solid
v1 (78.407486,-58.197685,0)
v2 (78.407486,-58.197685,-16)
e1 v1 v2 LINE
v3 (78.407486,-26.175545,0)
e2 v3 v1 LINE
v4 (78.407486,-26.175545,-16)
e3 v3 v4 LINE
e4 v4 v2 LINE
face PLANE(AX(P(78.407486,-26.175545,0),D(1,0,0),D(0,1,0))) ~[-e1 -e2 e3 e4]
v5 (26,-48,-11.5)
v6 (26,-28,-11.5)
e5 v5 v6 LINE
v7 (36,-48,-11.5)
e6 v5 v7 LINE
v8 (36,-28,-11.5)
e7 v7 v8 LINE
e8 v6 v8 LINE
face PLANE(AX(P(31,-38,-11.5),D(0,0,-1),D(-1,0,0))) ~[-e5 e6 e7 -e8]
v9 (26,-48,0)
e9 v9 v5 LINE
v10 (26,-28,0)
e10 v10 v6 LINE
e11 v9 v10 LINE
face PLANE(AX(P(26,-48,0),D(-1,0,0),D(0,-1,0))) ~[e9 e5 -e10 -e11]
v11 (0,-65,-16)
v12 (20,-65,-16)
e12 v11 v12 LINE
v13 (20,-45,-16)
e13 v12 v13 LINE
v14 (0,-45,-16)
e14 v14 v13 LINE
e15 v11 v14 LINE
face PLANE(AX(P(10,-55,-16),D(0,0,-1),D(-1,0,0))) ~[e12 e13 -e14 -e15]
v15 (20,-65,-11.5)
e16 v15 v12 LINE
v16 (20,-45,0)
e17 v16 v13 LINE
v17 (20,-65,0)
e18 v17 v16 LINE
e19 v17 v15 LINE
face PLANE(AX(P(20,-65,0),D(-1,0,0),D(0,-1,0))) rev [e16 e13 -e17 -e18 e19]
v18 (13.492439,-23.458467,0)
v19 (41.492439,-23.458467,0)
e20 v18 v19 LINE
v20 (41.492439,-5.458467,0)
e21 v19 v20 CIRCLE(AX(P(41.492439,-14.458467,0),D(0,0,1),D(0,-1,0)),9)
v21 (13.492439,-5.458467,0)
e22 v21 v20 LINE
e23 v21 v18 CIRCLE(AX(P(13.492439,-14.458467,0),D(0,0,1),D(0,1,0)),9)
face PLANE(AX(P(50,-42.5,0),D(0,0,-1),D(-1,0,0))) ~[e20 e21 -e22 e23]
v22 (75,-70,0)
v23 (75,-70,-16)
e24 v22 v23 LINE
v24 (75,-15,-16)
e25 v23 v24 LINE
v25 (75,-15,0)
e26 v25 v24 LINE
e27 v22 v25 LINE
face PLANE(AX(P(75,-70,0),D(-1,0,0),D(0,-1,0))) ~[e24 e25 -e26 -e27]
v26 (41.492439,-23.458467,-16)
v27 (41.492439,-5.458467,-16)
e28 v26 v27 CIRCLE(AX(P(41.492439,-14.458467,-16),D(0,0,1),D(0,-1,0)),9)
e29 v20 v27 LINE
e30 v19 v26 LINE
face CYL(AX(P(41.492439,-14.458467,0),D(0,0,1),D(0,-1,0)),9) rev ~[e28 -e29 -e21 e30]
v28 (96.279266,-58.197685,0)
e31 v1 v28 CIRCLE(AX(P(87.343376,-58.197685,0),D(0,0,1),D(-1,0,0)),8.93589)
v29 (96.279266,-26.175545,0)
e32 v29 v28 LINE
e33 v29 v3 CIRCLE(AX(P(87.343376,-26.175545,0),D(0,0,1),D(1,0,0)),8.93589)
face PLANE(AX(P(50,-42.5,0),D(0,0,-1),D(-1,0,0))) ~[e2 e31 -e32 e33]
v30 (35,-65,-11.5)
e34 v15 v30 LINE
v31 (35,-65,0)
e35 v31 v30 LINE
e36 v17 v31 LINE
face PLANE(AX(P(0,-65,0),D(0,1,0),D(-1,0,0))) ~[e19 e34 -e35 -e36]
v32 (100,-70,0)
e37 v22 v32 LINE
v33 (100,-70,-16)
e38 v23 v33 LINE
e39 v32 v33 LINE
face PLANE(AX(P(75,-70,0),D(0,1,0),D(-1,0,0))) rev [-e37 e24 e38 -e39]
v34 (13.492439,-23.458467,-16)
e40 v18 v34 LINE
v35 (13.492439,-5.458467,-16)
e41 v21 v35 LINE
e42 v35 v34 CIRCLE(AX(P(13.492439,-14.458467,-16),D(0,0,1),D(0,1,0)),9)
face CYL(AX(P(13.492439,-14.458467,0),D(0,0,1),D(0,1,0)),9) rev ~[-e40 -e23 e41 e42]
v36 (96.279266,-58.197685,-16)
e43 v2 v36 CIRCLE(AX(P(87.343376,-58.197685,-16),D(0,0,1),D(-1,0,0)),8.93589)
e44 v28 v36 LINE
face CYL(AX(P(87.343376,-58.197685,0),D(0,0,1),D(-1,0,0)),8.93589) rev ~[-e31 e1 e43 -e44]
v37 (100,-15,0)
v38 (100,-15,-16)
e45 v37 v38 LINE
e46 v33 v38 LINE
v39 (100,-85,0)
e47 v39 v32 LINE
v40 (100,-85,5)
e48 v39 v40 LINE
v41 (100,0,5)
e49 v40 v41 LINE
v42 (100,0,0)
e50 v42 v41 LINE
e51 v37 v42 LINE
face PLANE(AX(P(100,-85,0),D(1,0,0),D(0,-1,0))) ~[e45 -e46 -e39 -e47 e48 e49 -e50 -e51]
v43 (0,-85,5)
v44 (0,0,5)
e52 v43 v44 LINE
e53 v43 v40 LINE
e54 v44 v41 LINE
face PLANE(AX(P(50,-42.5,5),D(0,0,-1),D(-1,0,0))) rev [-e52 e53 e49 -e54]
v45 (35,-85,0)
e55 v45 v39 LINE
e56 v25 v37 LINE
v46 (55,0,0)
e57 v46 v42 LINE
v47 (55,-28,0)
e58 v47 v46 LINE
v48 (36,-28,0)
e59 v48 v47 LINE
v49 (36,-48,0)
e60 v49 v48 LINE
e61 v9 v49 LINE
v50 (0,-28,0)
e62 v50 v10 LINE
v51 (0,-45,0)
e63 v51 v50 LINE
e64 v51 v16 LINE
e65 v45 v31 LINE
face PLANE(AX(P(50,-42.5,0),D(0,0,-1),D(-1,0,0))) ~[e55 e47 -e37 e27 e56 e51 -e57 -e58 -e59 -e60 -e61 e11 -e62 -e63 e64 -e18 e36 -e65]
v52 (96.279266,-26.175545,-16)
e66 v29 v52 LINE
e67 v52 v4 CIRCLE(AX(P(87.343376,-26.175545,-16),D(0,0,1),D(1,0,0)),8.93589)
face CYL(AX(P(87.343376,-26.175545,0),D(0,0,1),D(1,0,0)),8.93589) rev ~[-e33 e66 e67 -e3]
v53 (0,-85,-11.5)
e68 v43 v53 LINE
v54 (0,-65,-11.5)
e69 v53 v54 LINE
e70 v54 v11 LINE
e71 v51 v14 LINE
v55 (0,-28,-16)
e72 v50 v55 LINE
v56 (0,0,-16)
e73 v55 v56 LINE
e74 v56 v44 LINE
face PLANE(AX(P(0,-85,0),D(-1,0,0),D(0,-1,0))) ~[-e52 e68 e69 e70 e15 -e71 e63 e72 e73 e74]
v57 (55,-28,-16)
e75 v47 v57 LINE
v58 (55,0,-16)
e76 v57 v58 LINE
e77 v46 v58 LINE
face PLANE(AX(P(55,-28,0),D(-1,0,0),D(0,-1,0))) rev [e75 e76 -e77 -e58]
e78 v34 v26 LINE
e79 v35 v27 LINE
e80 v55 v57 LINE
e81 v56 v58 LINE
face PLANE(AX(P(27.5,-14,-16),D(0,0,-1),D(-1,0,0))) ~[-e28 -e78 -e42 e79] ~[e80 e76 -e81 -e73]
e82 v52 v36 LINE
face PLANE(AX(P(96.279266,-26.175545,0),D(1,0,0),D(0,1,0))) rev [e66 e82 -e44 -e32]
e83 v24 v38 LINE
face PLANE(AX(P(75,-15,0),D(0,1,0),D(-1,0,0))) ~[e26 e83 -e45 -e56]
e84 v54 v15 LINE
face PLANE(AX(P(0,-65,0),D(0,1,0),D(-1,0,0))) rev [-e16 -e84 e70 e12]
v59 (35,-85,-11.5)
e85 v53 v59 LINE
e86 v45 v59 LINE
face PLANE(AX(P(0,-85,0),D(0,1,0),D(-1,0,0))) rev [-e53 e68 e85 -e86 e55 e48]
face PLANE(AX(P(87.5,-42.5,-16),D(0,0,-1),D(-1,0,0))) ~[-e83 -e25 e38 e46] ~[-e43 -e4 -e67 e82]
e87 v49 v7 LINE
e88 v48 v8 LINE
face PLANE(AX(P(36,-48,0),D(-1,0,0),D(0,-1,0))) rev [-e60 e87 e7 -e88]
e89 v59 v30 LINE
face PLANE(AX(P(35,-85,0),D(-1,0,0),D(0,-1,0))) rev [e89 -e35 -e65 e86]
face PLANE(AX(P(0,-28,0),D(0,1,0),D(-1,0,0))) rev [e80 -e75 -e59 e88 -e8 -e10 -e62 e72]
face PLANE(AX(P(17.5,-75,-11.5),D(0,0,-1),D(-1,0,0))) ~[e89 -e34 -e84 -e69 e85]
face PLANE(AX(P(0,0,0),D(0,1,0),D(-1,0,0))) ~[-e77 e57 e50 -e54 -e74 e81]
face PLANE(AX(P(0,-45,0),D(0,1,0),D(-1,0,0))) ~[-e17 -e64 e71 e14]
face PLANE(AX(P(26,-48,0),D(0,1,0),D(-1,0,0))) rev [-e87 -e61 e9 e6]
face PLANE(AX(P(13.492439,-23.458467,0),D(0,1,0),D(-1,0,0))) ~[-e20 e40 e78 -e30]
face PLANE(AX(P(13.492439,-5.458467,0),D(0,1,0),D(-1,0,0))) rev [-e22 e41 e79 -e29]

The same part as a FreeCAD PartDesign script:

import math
import FreeCAD as App
import Part
import Sketcher
from FreeCAD import Vector

doc = App.newDocument("Part")
body = doc.addObject("PartDesign::Body", "Body")

sketch1 = doc.addObject("Sketcher::SketchObject", "Sketch")
body.addObject(sketch1)
sketch1.AttachmentSupport = (doc.XY_Plane, [""])
sketch1.MapMode = "FlatFace"
sketch1.addGeometry(Part.LineSegment(Vector(0, 0, 0), Vector(0, -85, 0)), False)
sketch1.addGeometry(Part.LineSegment(Vector(0, -85, 0), Vector(100, -85, 0)), False)
sketch1.addGeometry(Part.LineSegment(Vector(100, -85, 0), Vector(100, 0, 0)), False)
sketch1.addGeometry(Part.LineSegment(Vector(100, 0, 0), Vector(0, 0, 0)), False)
sketch1.addConstraint(Sketcher.Constraint("Coincident", 0, 2, 1, 1))
sketch1.addConstraint(Sketcher.Constraint("Coincident", 1, 2, 2, 1))
sketch1.addConstraint(Sketcher.Constraint("Coincident", 2, 2, 3, 1))
sketch1.addConstraint(Sketcher.Constraint("Coincident", 3, 2, 0, 1))
sketch1.addConstraint(Sketcher.Constraint("Vertical", 0))
sketch1.addConstraint(Sketcher.Constraint("Horizontal", 1))
sketch1.addConstraint(Sketcher.Constraint("Vertical", 2))
sketch1.addConstraint(Sketcher.Constraint("Horizontal", 3))
sketch1.addConstraint(Sketcher.Constraint("Coincident", 3, 2, -1, 1))
sketch1.addConstraint(Sketcher.Constraint("DistanceX", 1, 1, 1, 2, 100.0))
sketch1.addConstraint(Sketcher.Constraint("DistanceY", 0, 2, 0, 1, 85.0))
pad1 = doc.addObject("PartDesign::Pad", "Pad")
body.addObject(pad1)
pad1.Profile = sketch1
pad1.Length = 5
pad1.Reversed = True

sketch2 = doc.addObject("Sketcher::SketchObject", "Sketch001")
body.addObject(sketch2)
sketch2.AttachmentSupport = (doc.XY_Plane, [""])
sketch2.MapMode = "FlatFace"
sketch2.addGeometry(Part.LineSegment(Vector(0, 0, 0), Vector(0, -28, 0)), False)
sketch2.addGeometry(Part.LineSegment(Vector(0, -28, 0), Vector(55, -28, 0)), False)
sketch2.addGeometry(Part.LineSegment(Vector(55, -28, 0), Vector(55, 0, 0)), False)
sketch2.addGeometry(Part.LineSegment(Vector(55, 0, 0), Vector(0, 0, 0)), False)
sketch2.addGeometry(Part.ArcOfCircle(Part.Circle(Vector(13, -14, 0), Vector(0, 0, 1), 9), math.radians(90), math.radians(270)), False)
sketch2.addGeometry(Part.LineSegment(Vector(13, -5, 0), Vector(41, -5, 0)), False)
sketch2.addGeometry(Part.ArcOfCircle(Part.Circle(Vector(41, -14, 0), Vector(0, 0, 1), 9), math.radians(-90), math.radians(90)), False)
sketch2.addGeometry(Part.LineSegment(Vector(41, -23, 0), Vector(13, -23, 0)), False)
sketch2.addGeometry(Part.LineSegment(Vector(75, -15, 0), Vector(75, -70, 0)), False)
sketch2.addGeometry(Part.LineSegment(Vector(75, -70, 0), Vector(100, -70, 0)), False)
sketch2.addGeometry(Part.LineSegment(Vector(100, -70, 0), Vector(100, -15, 0)), False)
sketch2.addGeometry(Part.LineSegment(Vector(100, -15, 0), Vector(75, -15, 0)), False)
sketch2.addGeometry(Part.ArcOfCircle(Part.Circle(Vector(87, -26, 0), Vector(0, 0, 1), 9), math.radians(0), math.radians(180)), False)
sketch2.addGeometry(Part.LineSegment(Vector(96, -26, 0), Vector(96, -58, 0)), False)
sketch2.addGeometry(Part.ArcOfCircle(Part.Circle(Vector(87, -58, 0), Vector(0, 0, 1), 9), math.radians(180), math.radians(360)), False)
sketch2.addGeometry(Part.LineSegment(Vector(78, -58, 0), Vector(78, -26, 0)), False)
sketch2.addGeometry(Part.LineSegment(Vector(0, -45, 0), Vector(0, -65, 0)), False)
sketch2.addGeometry(Part.LineSegment(Vector(0, -65, 0), Vector(20, -65, 0)), False)
sketch2.addGeometry(Part.LineSegment(Vector(20, -65, 0), Vector(20, -45, 0)), False)
sketch2.addGeometry(Part.LineSegment(Vector(20, -45, 0), Vector(0, -45, 0)), False)
sketch2.addConstraint(Sketcher.Constraint("Coincident", 0, 2, 1, 1))
sketch2.addConstraint(Sketcher.Constraint("Coincident", 1, 2, 2, 1))
sketch2.addConstraint(Sketcher.Constraint("Coincident", 2, 2, 3, 1))
sketch2.addConstraint(Sketcher.Constraint("Coincident", 3, 2, 0, 1))
sketch2.addConstraint(Sketcher.Constraint("Tangent", 4, 1, 5, 1))
sketch2.addConstraint(Sketcher.Constraint("Tangent", 5, 2, 6, 2))
sketch2.addConstraint(Sketcher.Constraint("Tangent", 6, 1, 7, 1))
sketch2.addConstraint(Sketcher.Constraint("Tangent", 7, 2, 4, 2))
sketch2.addConstraint(Sketcher.Constraint("Coincident", 8, 2, 9, 1))
sketch2.addConstraint(Sketcher.Constraint("Coincident", 9, 2, 10, 1))
sketch2.addConstraint(Sketcher.Constraint("Coincident", 10, 2, 11, 1))
sketch2.addConstraint(Sketcher.Constraint("Coincident", 11, 2, 8, 1))
sketch2.addConstraint(Sketcher.Constraint("Tangent", 12, 1, 13, 1))
sketch2.addConstraint(Sketcher.Constraint("Tangent", 13, 2, 14, 2))
sketch2.addConstraint(Sketcher.Constraint("Tangent", 14, 1, 15, 1))
sketch2.addConstraint(Sketcher.Constraint("Tangent", 15, 2, 12, 2))
sketch2.addConstraint(Sketcher.Constraint("Coincident", 16, 2, 17, 1))
sketch2.addConstraint(Sketcher.Constraint("Coincident", 17, 2, 18, 1))
sketch2.addConstraint(Sketcher.Constraint("Coincident", 18, 2, 19, 1))
sketch2.addConstraint(Sketcher.Constraint("Coincident", 19, 2, 16, 1))
sketch2.addConstraint(Sketcher.Constraint("Vertical", 0))
sketch2.addConstraint(Sketcher.Constraint("Horizontal", 1))
sketch2.addConstraint(Sketcher.Constraint("Vertical", 2))
sketch2.addConstraint(Sketcher.Constraint("Horizontal", 3))
sketch2.addConstraint(Sketcher.Constraint("Horizontal", 5))
sketch2.addConstraint(Sketcher.Constraint("Horizontal", 7))
sketch2.addConstraint(Sketcher.Constraint("Vertical", 8))
sketch2.addConstraint(Sketcher.Constraint("Horizontal", 9))
sketch2.addConstraint(Sketcher.Constraint("Vertical", 10))
sketch2.addConstraint(Sketcher.Constraint("Horizontal", 11))
sketch2.addConstraint(Sketcher.Constraint("Vertical", 13))
sketch2.addConstraint(Sketcher.Constraint("Vertical", 15))
sketch2.addConstraint(Sketcher.Constraint("Vertical", 16))
sketch2.addConstraint(Sketcher.Constraint("Horizontal", 17))
sketch2.addConstraint(Sketcher.Constraint("Vertical", 18))
sketch2.addConstraint(Sketcher.Constraint("Horizontal", 19))
sketch2.addConstraint(Sketcher.Constraint("Coincident", 3, 2, -1, 1))
sketch2.addConstraint(Sketcher.Constraint("PointOnObject", 16, 2, -2))
sketch2.addConstraint(Sketcher.Constraint("Equal", 7, 0))
sketch2.addConstraint(Sketcher.Constraint("Equal", 3, 8))
sketch2.addConstraint(Sketcher.Constraint("Equal", 19, 16))
sketch2.addConstraint(Sketcher.Constraint("Radius", 4, 9.0))
sketch2.addConstraint(Sketcher.Constraint("DistanceX", 1, 1, 1, 2, 55.0))
sketch2.addConstraint(Sketcher.Constraint("DistanceX", 5, 1, 5, 2, 28.0))
sketch2.addConstraint(Sketcher.Constraint("DistanceX", 9, 1, 9, 2, 25.0))
sketch2.addConstraint(Sketcher.Constraint("DistanceX", 17, 1, 17, 2, 20.0))
sketch2.addConstraint(Sketcher.Constraint("DistanceX", -1, 1, 8, 2, 75.0))
sketch2.addConstraint(Sketcher.Constraint("DistanceY", 8, 2, -1, 1, 70.0))
sketch2.addConstraint(Sketcher.Constraint("DistanceY", 16, 2, -1, 1, 65.0))
sketch2.addConstraint(Sketcher.Constraint("Radius", 12, 8.93589))
sketch2.addConstraint(Sketcher.Constraint("DistanceY", 13, 2, 13, 1, 32.02214))
sketch2.addConstraint(Sketcher.Constraint("DistanceX", -1, 1, 4, 3, 13.492439))
sketch2.addConstraint(Sketcher.Constraint("DistanceY", 4, 3, -1, 1, 14.458467))
sketch2.addConstraint(Sketcher.Constraint("DistanceX", -1, 1, 12, 3, 87.343376))
sketch2.addConstraint(Sketcher.Constraint("DistanceY", 12, 3, -1, 1, 26.175545))
pad2 = doc.addObject("PartDesign::Pad", "Pad001")
body.addObject(pad2)
pad2.Profile = sketch2
pad2.Length = 16

sketch3 = doc.addObject("Sketcher::SketchObject", "Sketch002")
body.addObject(sketch3)
sketch3.AttachmentSupport = (doc.XY_Plane, [""])
sketch3.MapMode = "FlatFace"
sketch3.addGeometry(Part.LineSegment(Vector(0, -65, 0), Vector(0, -85, 0)), False)
sketch3.addGeometry(Part.LineSegment(Vector(0, -85, 0), Vector(35, -85, 0)), False)
sketch3.addGeometry(Part.LineSegment(Vector(35, -85, 0), Vector(35, -65, 0)), False)
sketch3.addGeometry(Part.LineSegment(Vector(35, -65, 0), Vector(0, -65, 0)), False)
sketch3.addGeometry(Part.LineSegment(Vector(26, -28, 0), Vector(26, -48, 0)), False)
sketch3.addGeometry(Part.LineSegment(Vector(26, -48, 0), Vector(36, -48, 0)), False)
sketch3.addGeometry(Part.LineSegment(Vector(36, -48, 0), Vector(36, -28, 0)), False)
sketch3.addGeometry(Part.LineSegment(Vector(36, -28, 0), Vector(26, -28, 0)), False)
sketch3.addConstraint(Sketcher.Constraint("Coincident", 0, 2, 1, 1))
sketch3.addConstraint(Sketcher.Constraint("Coincident", 1, 2, 2, 1))
sketch3.addConstraint(Sketcher.Constraint("Coincident", 2, 2, 3, 1))
sketch3.addConstraint(Sketcher.Constraint("Coincident", 3, 2, 0, 1))
sketch3.addConstraint(Sketcher.Constraint("Coincident", 4, 2, 5, 1))
sketch3.addConstraint(Sketcher.Constraint("Coincident", 5, 2, 6, 1))
sketch3.addConstraint(Sketcher.Constraint("Coincident", 6, 2, 7, 1))
sketch3.addConstraint(Sketcher.Constraint("Coincident", 7, 2, 4, 1))
sketch3.addConstraint(Sketcher.Constraint("Vertical", 0))
sketch3.addConstraint(Sketcher.Constraint("Horizontal", 1))
sketch3.addConstraint(Sketcher.Constraint("Vertical", 2))
sketch3.addConstraint(Sketcher.Constraint("Horizontal", 3))
sketch3.addConstraint(Sketcher.Constraint("Vertical", 4))
sketch3.addConstraint(Sketcher.Constraint("Horizontal", 5))
sketch3.addConstraint(Sketcher.Constraint("Vertical", 6))
sketch3.addConstraint(Sketcher.Constraint("Horizontal", 7))
sketch3.addConstraint(Sketcher.Constraint("PointOnObject", 0, 2, -2))
sketch3.addConstraint(Sketcher.Constraint("Equal", 2, 4))
sketch3.addConstraint(Sketcher.Constraint("DistanceX", 1, 1, 1, 2, 35.0))
sketch3.addConstraint(Sketcher.Constraint("DistanceX", 5, 1, 5, 2, 10.0))
sketch3.addConstraint(Sketcher.Constraint("DistanceY", 0, 2, 0, 1, 20.0))
sketch3.addConstraint(Sketcher.Constraint("DistanceY", 0, 2, -1, 1, 85.0))
sketch3.addConstraint(Sketcher.Constraint("DistanceX", -1, 1, 4, 2, 26.0))
sketch3.addConstraint(Sketcher.Constraint("DistanceY", 4, 2, -1, 1, 48.0))
pad3 = doc.addObject("PartDesign::Pad", "Pad002")
body.addObject(pad3)
pad3.Profile = sketch3
pad3.Length = 11.5
body2 = doc.addObject("PartDesign::Body", "Body001")
doc.recompute()

mirroring = doc.addObject("Part::Mirroring", "Mirroring")
mirroring.Source = body
mirroring.Base = Vector(0, 0, 0)
mirroring.Normal = Vector(0, 0, 1)
body2.BaseFeature = mirroring
doc.recompute()
body.Visibility = False
mirroring.Visibility = False

doc.recompute()
